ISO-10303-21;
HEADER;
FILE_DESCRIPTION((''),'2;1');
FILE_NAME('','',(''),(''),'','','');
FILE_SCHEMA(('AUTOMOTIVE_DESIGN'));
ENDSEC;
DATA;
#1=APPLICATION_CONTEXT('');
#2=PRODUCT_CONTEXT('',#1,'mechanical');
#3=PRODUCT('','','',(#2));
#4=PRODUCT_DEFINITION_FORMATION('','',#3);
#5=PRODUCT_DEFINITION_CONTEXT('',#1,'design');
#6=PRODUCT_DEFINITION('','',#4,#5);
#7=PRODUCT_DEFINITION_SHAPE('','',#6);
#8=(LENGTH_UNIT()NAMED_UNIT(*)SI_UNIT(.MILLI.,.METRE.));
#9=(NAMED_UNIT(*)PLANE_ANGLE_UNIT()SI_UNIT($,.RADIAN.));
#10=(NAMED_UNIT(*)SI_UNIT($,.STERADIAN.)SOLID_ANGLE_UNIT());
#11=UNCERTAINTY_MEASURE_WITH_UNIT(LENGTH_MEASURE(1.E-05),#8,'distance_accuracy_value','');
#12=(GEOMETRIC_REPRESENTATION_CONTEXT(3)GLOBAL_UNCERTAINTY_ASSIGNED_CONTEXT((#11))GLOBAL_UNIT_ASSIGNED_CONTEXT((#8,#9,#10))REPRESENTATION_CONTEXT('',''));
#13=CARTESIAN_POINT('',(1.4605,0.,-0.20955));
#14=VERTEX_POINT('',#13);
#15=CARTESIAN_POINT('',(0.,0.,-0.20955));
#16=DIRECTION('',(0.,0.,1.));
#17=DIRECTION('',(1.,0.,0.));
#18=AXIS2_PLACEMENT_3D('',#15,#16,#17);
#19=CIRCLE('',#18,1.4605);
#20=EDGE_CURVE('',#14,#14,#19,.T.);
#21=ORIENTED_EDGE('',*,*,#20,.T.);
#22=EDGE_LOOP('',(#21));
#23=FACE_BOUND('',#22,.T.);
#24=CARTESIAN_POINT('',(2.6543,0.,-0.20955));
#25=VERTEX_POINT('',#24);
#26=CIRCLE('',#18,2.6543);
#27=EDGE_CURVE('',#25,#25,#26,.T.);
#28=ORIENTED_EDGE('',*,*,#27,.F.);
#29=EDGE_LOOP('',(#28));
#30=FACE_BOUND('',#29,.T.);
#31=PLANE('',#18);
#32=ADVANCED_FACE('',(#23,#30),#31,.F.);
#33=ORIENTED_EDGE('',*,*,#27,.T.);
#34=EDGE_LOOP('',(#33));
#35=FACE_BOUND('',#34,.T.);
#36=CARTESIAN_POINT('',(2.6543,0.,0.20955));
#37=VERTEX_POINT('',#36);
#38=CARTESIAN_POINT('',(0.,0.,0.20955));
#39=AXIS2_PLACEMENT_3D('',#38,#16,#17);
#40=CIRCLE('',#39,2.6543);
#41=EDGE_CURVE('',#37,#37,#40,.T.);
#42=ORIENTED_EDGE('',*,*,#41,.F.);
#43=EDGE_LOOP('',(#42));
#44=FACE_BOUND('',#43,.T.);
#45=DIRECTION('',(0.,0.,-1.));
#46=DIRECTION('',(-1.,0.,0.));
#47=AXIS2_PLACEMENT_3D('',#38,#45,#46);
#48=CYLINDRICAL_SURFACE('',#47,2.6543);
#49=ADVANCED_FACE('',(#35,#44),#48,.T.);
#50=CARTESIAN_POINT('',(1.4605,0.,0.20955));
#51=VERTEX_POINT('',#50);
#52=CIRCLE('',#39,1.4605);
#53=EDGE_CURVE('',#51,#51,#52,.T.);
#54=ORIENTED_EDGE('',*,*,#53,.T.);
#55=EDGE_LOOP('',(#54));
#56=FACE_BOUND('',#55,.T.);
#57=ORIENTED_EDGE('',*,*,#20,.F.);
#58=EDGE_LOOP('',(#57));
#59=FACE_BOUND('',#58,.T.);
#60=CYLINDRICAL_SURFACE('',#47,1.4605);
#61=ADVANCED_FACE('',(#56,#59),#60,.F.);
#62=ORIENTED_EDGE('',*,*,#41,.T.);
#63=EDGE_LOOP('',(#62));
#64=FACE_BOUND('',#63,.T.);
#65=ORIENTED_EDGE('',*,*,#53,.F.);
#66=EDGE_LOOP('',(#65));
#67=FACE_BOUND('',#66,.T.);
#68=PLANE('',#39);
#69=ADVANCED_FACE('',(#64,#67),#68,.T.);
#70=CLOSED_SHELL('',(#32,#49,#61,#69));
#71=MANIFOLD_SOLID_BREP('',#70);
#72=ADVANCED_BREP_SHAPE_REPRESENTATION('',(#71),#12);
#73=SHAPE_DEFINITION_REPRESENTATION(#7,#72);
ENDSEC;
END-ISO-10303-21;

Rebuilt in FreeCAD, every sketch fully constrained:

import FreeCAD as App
import Part
import Sketcher
from FreeCAD import Vector
Q = App.Units.Quantity

doc = App.newDocument("Part")
body = doc.addObject("PartDesign::Body", "Body")

sketch1 = body.newObject("Sketcher::SketchObject", "Sketch")
sketch1.AttachmentSupport = (doc.getObject("XY_Plane"), [""])
sketch1.MapMode = "FlatFace"
sketch1.addGeometry([
    Part.Circle(Vector(0, 0, 0), Vector(0, 0, 1), 2.7),
    Part.Circle(Vector(0, 0, 0), Vector(0, 0, 1), 1.5),
], False)
sketch1.addConstraint([
    Sketcher.Constraint("Coincident", 0, 3, -1, 1),
    Sketcher.Constraint("Coincident", 1, 3, -1, 1),
    Sketcher.Constraint("Diameter", 0, Q("0.209 in")),
    Sketcher.Constraint("Diameter", 1, Q("0.115 in")),
])
pad1 = body.newObject("PartDesign::Pad", "Pad")
pad1.Profile = sketch1
pad1.Length = Q("0.0165 in")
pad1.Midplane = True

doc.recompute()
